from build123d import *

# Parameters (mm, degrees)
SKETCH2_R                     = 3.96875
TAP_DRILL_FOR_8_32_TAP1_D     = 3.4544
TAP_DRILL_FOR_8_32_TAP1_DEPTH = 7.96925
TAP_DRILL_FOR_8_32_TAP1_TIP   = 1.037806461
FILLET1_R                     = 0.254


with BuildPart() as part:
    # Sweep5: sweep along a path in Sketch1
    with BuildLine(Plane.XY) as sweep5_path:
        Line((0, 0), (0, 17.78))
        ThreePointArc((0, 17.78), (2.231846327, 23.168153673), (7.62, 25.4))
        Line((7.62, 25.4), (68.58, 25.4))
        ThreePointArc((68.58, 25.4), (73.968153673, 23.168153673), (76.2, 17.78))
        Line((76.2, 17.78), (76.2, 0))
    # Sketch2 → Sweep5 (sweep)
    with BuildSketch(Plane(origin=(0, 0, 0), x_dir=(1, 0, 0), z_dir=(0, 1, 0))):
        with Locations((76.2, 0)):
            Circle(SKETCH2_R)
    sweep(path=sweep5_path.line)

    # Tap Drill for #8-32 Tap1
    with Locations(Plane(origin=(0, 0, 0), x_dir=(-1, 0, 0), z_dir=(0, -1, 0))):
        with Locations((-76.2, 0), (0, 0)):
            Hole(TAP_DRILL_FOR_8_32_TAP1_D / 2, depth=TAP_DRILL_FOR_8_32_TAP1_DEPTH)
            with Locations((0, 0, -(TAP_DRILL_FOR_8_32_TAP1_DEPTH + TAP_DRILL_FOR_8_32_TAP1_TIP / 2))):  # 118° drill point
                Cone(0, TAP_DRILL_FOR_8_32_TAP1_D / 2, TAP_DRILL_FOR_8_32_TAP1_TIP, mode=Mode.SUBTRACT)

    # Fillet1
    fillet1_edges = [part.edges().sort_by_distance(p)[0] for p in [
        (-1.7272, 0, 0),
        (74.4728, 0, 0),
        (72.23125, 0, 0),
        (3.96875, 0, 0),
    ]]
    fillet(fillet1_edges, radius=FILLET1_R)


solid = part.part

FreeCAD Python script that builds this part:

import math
import FreeCAD as App
import Part
import Sketcher
from FreeCAD import Vector
Q = App.Units.Quantity


def edges_at(feature, points):
    """Names of the edges that pass closest to the given points."""
    edges = feature.Shape.Edges
    near = lambda p: min(range(len(edges)), key=lambda i: edges[i].distToShape(Part.Vertex(*p))[0])
    return sorted({f"Edge{near(p) + 1}" for p in points})

doc = App.newDocument("Part")
body = doc.addObject("PartDesign::Body", "Body")

sketch1 = doc.addObject("Sketcher::SketchObject", "Sketch")
body.addObject(sketch1)
sketch1.AttachmentSupport = (doc.XZ_Plane, [""])
sketch1.MapMode = "FlatFace"
sketch1.addGeometry(Part.Circle(Vector(76.2, 0, 0), Vector(0, 0, 1), 4), False)
sketch1.addConstraint(Sketcher.Constraint("PointOnObject", 0, 3, -1))
sketch1.addConstraint(Sketcher.Constraint("Diameter", 0, Q("0.3125 in")))
sketch1.addConstraint(Sketcher.Constraint("DistanceX", -1, 1, 0, 3, Q("3 in")))

sketch2 = doc.addObject("Sketcher::SketchObject", "Sketch001")
body.addObject(sketch2)
sketch2.AttachmentSupport = (doc.XY_Plane, [""])
sketch2.MapMode = "FlatFace"
sketch2.addGeometry(Part.LineSegment(Vector(0, 0, 0), Vector(0, 18, 0)), False)
sketch2.addGeometry(Part.ArcOfCircle(Part.Circle(Vector(8, 18, 0), Vector(0, 0, 1), 8), math.radians(90), math.radians(180)), False)
sketch2.addGeometry(Part.LineSegment(Vector(8, 25, 0), Vector(69, 25, 0)), False)
sketch2.addGeometry(Part.ArcOfCircle(Part.Circle(Vector(69, 18, 0), Vector(0, 0, 1), 8), math.radians(0), math.radians(90)), False)
sketch2.addGeometry(Part.LineSegment(Vector(76, 18, 0), Vector(76, 0, 0)), False)
sketch2.addConstraint(Sketcher.Constraint("Tangent", 0, 2, 1, 2))
sketch2.addConstraint(Sketcher.Constraint("Tangent", 1, 1, 2, 1))
sketch2.addConstraint(Sketcher.Constraint("Tangent", 2, 2, 3, 2))
sketch2.addConstraint(Sketcher.Constraint("Tangent", 3, 1, 4, 1))
sketch2.addConstraint(Sketcher.Constraint("Vertical", 0))
sketch2.addConstraint(Sketcher.Constraint("Horizontal", 2))
sketch2.addConstraint(Sketcher.Constraint("Vertical", 4))
sketch2.addConstraint(Sketcher.Constraint("Coincident", 0, 1, -1, 1))
sketch2.addConstraint(Sketcher.Constraint("Equal", 1, 3))
sketch2.addConstraint(Sketcher.Constraint("PointOnObject", 4, 2, -1))
sketch2.addConstraint(Sketcher.Constraint("Radius", 1, Q("0.3 in")))
sketch2.addConstraint(Sketcher.Constraint("DistanceX", 2, 1, 2, 2, Q("2.4 in")))
sketch2.addConstraint(Sketcher.Constraint("DistanceY", 0, 1, 0, 2, Q("0.7 in")))
doc.recompute()

additivepipe = doc.addObject("PartDesign::AdditivePipe", "AdditivePipe")
body.addObject(additivepipe)
additivepipe.Profile = sketch1
additivepipe.Spine = (sketch2, ["Edge1", "Edge2", "Edge3", "Edge4", "Edge5"])

sketch3 = doc.addObject("Sketcher::SketchObject", "Sketch002")
body.addObject(sketch3)
sketch3.AttachmentSupport = (doc.XZ_Plane, [""])
sketch3.MapMode = "FlatFace"
sketch3.addGeometry(Part.Circle(Vector(76.2, 0, 0), Vector(0, 0, 1), 1.7), False)
sketch3.addGeometry(Part.Circle(Vector(0, 0, 0), Vector(0, 0, 1), 1.7), False)
sketch3.addConstraint(Sketcher.Constraint("Coincident", 1, 3, -1, 1))
sketch3.addConstraint(Sketcher.Constraint("Equal", 0, 1))
sketch3.addConstraint(Sketcher.Constraint("PointOnObject", 0, 3, -1))
sketch3.addConstraint(Sketcher.Constraint("Diameter", 0, Q("0.136 in")))
sketch3.addConstraint(Sketcher.Constraint("DistanceX", -1, 1, 0, 3, Q("3 in")))
doc.recompute()
hole = doc.addObject("PartDesign::Hole", "Hole")
body.addObject(hole)
hole.Profile = sketch3
hole.ThreadType = "None"
hole.Diameter = Q("0.136 in")
hole.DepthType = "Dimension"
hole.Depth = 7.96925
hole.DrillPoint = "Angled"
hole.DrillPointAngle = 118
doc.recompute()

fillet = doc.addObject("PartDesign::Fillet", "Fillet")
body.addObject(fillet)
fillet.Base = (hole, edges_at(hole, [
    (-1.727, 0, 0),
    (74.473, 0, 0),
    (72.231, 0, 0),
    (3.969, 0, 0),
]))
fillet.Radius = Q("0.01 in")

doc.recompute()
